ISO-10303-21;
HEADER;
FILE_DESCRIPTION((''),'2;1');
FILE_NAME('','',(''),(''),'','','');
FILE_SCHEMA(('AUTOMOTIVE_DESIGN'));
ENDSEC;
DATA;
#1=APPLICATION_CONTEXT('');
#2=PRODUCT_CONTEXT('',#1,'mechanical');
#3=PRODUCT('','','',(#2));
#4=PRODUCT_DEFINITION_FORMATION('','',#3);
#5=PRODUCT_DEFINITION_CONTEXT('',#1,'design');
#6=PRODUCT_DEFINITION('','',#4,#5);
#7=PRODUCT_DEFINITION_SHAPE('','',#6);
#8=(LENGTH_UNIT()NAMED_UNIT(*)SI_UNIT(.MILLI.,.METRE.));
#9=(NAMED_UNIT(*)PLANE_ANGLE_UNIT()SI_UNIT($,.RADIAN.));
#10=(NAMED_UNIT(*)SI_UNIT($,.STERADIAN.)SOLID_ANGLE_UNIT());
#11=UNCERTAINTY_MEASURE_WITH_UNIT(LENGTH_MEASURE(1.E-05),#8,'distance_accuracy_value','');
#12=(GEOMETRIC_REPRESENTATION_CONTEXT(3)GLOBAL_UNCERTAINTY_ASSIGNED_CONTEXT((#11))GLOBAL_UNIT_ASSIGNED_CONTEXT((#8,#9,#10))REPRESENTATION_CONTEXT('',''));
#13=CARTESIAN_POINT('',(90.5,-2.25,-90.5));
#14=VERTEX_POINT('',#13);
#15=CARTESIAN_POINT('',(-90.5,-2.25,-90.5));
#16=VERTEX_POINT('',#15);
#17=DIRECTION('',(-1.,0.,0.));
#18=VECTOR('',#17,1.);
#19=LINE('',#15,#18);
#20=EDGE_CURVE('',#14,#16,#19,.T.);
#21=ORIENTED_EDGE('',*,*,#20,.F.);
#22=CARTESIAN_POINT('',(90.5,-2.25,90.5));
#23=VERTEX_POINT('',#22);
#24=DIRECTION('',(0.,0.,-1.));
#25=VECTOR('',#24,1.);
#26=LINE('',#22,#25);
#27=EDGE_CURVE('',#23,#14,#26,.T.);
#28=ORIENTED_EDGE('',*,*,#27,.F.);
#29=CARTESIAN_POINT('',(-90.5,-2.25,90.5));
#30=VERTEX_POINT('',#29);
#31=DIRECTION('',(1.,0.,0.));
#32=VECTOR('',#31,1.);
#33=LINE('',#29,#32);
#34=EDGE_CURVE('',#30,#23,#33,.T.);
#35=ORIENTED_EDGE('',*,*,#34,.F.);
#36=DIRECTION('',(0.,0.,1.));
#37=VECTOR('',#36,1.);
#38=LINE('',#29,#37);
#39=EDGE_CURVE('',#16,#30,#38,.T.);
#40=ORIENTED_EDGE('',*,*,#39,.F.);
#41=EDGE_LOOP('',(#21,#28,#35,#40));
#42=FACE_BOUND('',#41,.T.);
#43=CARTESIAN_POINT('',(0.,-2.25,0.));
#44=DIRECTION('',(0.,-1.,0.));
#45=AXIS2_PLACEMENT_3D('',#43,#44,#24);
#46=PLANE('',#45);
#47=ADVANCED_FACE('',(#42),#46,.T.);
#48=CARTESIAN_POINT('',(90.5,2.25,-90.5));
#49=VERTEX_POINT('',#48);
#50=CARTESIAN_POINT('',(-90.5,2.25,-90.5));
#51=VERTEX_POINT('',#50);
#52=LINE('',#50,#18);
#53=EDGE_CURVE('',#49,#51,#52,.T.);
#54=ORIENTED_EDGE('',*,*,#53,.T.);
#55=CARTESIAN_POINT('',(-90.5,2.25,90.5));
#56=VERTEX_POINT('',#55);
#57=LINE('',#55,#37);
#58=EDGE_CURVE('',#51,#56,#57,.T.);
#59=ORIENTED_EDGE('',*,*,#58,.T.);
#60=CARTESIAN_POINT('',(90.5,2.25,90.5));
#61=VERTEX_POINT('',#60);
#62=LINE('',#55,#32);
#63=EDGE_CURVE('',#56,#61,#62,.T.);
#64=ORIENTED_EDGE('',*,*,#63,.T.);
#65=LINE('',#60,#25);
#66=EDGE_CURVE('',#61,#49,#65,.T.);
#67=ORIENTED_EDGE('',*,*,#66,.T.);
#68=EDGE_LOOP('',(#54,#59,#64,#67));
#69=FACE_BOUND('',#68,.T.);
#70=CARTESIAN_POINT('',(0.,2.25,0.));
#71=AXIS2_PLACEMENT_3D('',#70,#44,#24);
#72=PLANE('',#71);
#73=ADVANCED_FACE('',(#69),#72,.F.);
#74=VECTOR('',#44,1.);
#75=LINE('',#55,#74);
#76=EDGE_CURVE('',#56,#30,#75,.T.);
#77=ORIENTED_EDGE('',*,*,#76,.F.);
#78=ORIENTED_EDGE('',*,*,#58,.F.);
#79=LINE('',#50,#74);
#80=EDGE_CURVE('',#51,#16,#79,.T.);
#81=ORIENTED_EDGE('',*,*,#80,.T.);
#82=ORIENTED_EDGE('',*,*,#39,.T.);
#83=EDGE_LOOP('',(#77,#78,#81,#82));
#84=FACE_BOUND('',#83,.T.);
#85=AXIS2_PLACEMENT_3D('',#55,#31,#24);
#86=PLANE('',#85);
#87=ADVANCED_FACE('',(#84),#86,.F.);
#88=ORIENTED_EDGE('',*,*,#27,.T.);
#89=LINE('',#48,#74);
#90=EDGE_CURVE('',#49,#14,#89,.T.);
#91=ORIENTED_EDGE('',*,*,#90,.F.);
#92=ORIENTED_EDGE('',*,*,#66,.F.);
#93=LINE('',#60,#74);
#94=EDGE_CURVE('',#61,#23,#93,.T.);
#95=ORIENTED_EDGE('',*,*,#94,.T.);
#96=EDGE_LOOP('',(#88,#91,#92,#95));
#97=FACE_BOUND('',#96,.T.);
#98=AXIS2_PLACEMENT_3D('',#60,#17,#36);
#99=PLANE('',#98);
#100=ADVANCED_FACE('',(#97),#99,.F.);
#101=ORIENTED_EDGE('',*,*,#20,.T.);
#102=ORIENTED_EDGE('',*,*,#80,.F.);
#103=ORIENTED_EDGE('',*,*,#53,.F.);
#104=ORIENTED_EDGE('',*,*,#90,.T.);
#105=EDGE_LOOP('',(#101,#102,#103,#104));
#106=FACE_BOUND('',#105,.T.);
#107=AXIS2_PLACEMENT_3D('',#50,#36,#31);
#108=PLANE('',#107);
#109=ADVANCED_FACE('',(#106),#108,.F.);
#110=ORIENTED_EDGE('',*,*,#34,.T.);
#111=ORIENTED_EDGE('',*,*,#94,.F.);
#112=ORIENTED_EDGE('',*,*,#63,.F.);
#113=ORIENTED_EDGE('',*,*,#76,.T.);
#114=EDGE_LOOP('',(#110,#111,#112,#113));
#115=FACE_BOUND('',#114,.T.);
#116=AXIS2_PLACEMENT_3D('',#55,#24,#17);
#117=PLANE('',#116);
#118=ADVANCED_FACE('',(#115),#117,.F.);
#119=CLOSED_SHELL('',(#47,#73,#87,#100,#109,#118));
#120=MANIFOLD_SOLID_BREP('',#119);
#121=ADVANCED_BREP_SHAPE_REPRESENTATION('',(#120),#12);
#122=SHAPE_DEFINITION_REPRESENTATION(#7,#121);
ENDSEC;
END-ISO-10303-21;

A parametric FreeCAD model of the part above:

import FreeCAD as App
import Part
import Sketcher
from FreeCAD import Vector

doc = App.newDocument("Part")
body = doc.addObject("PartDesign::Body", "Body")

sketch1 = body.newObject("Sketcher::SketchObject", "Sketch")
sketch1.AttachmentSupport = (doc.getObject("XZ_Plane"), [""])
sketch1.MapMode = "FlatFace"
sketch1.addGeometry([
    Part.LineSegment(Vector(-90, -90, 0), Vector(-90, 90, 0)),
    Part.LineSegment(Vector(-90, 90, 0), Vector(90, 90, 0)),
    Part.LineSegment(Vector(90, 90, 0), Vector(90, -90, 0)),
    Part.LineSegment(Vector(90, -90, 0), Vector(-90, -90, 0)),
], False)
sketch1.addConstraint([
    Sketcher.Constraint("Coincident", 0, 2, 1, 1),
    Sketcher.Constraint("Coincident", 1, 2, 2, 1),
    Sketcher.Constraint("Coincident", 2, 2, 3, 1),
    Sketcher.Constraint("Coincident", 3, 2, 0, 1),
    Sketcher.Constraint("Vertical", 0),
    Sketcher.Constraint("Horizontal", 1),
    Sketcher.Constraint("Vertical", 2),
    Sketcher.Constraint("Horizontal", 3),
    Sketcher.Constraint("Symmetric", 0, 2, 2, 2, -1, 1),
    Sketcher.Constraint("Equal", 3, 0),
    Sketcher.Constraint("DistanceX", 1, 1, 1, 2, 181.0),
])
pad1 = body.newObject("PartDesign::Pad", "Pad")
pad1.Profile = sketch1
pad1.Length = 4.5
pad1.Midplane = True

doc.recompute()
